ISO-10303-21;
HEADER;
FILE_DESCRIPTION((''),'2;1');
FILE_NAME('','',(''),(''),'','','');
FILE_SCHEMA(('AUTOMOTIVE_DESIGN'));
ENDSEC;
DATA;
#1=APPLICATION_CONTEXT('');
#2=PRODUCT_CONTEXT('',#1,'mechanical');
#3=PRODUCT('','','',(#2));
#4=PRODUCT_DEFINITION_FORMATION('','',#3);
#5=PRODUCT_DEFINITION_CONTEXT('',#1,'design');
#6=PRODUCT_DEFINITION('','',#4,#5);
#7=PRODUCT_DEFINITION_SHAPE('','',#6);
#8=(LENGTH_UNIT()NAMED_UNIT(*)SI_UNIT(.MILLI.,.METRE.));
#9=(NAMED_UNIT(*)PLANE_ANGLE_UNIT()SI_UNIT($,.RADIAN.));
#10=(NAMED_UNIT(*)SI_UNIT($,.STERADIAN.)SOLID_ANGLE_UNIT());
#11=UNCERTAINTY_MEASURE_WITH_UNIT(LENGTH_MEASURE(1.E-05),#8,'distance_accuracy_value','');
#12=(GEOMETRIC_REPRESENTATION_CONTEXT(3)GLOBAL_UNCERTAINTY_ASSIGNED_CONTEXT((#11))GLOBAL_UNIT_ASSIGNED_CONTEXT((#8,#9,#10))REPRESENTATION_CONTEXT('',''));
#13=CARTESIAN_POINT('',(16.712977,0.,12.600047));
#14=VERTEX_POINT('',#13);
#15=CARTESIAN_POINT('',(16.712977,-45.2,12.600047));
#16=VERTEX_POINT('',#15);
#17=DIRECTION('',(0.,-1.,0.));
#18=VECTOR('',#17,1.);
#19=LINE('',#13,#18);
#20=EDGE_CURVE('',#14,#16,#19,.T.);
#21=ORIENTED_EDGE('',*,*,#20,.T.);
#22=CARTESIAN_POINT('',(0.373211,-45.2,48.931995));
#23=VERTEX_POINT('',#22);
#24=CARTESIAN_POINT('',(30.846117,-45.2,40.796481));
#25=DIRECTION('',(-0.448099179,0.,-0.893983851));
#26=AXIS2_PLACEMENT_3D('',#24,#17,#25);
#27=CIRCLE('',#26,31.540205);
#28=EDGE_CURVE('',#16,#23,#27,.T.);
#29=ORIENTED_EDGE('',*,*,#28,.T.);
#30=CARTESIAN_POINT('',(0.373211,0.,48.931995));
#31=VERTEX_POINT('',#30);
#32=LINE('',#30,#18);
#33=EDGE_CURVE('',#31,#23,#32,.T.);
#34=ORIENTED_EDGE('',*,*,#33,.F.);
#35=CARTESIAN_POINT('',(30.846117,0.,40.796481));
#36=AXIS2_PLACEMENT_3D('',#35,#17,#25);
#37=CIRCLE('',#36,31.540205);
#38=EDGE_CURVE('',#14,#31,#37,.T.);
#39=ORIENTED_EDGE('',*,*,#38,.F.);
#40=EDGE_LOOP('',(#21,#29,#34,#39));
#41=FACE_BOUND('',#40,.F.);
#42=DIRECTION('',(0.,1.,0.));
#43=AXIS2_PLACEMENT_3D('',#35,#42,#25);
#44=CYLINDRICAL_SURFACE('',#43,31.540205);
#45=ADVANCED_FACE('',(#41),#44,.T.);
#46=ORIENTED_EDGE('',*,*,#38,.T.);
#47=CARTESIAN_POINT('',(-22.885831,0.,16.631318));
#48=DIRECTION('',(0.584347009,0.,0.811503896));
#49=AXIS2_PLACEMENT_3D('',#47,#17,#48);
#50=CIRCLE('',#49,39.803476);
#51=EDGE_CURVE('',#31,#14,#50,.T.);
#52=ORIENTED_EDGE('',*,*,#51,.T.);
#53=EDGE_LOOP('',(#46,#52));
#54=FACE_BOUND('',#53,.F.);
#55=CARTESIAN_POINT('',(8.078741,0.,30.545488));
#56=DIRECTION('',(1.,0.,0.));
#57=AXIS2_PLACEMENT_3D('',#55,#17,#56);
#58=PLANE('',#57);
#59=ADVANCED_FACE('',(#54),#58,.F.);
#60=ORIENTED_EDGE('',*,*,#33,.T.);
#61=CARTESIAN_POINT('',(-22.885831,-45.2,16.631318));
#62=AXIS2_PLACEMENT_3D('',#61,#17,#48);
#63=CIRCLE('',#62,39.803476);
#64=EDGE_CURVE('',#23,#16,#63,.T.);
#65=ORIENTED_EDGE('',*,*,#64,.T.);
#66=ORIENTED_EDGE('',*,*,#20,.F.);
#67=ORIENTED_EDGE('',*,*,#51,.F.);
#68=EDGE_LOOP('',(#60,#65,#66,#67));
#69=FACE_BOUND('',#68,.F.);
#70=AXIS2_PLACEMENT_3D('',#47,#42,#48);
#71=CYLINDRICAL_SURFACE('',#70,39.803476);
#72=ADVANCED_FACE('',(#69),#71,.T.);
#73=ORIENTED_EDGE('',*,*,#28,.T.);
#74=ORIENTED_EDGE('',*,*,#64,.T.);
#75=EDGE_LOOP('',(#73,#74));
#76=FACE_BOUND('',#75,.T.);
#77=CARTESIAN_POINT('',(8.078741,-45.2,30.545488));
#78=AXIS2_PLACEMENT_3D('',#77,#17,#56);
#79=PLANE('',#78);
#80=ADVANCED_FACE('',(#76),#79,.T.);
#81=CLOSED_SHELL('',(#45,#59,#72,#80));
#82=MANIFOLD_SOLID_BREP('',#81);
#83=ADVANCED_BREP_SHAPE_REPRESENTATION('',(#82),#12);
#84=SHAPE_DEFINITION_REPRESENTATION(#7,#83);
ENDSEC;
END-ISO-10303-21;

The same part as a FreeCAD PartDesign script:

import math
import FreeCAD as App
import Part
import Sketcher
Q = App.Units.Quantity

doc = App.newDocument("Part")
params = doc.addObject("Spreadsheet::Sheet", "Params")
for row, (alias, value) in enumerate([
    ("pad1_length", "45.2 mm"),
], start=1):
    params.set(f"A{row}", alias)
    params.set(f"B{row}", "=" + value)
    params.setAlias(f"B{row}", alias)

body = doc.addObject("PartDesign::Body", "Body")

sketch1 = body.newObject("Sketcher::SketchObject", "Sketch")
sketch1.AttachmentSupport = (doc.getObject("XZ_Plane"), [""])
sketch1.MapMode = "FlatFace"
sketch1.addGeometry([
    Part.ArcOfCircle(Part.Circle(App.Vector(-23, 17, 0), App.Vector(0, 0, 1), 40), math.radians(54), math.radians(354)),
    Part.ArcOfCircle(Part.Circle(App.Vector(31, 41, 0), App.Vector(0, 0, 1), 32), math.radians(-117), math.radians(165)),
], False)
sketch1.addConstraint([
    Sketcher.Constraint("Coincident", 0, 1, 1, 2),
    Sketcher.Constraint("Coincident", 1, 1, 0, 2),
    Sketcher.Constraint("Radius", 0, Q("39.803476 mm")),
    Sketcher.Constraint("Radius", 1, Q("31.540205 mm")),
    Sketcher.Constraint("DistanceX", 0, 3, -1, 1, Q("22.885831 mm")),
    Sketcher.Constraint("DistanceY", -1, 1, 0, 3, Q("16.631318 mm")),
    Sketcher.Constraint("DistanceY", -1, 1, 1, 3, Q("40.796481 mm")),
    Sketcher.Constraint("DistanceX", -1, 1, 0, 1, Q("0.373211 mm")),
])
pad1 = body.newObject("PartDesign::Pad", "Pad")
pad1.Profile = sketch1
pad1.setExpression("Length", "Params.pad1_length")

doc.recompute()
